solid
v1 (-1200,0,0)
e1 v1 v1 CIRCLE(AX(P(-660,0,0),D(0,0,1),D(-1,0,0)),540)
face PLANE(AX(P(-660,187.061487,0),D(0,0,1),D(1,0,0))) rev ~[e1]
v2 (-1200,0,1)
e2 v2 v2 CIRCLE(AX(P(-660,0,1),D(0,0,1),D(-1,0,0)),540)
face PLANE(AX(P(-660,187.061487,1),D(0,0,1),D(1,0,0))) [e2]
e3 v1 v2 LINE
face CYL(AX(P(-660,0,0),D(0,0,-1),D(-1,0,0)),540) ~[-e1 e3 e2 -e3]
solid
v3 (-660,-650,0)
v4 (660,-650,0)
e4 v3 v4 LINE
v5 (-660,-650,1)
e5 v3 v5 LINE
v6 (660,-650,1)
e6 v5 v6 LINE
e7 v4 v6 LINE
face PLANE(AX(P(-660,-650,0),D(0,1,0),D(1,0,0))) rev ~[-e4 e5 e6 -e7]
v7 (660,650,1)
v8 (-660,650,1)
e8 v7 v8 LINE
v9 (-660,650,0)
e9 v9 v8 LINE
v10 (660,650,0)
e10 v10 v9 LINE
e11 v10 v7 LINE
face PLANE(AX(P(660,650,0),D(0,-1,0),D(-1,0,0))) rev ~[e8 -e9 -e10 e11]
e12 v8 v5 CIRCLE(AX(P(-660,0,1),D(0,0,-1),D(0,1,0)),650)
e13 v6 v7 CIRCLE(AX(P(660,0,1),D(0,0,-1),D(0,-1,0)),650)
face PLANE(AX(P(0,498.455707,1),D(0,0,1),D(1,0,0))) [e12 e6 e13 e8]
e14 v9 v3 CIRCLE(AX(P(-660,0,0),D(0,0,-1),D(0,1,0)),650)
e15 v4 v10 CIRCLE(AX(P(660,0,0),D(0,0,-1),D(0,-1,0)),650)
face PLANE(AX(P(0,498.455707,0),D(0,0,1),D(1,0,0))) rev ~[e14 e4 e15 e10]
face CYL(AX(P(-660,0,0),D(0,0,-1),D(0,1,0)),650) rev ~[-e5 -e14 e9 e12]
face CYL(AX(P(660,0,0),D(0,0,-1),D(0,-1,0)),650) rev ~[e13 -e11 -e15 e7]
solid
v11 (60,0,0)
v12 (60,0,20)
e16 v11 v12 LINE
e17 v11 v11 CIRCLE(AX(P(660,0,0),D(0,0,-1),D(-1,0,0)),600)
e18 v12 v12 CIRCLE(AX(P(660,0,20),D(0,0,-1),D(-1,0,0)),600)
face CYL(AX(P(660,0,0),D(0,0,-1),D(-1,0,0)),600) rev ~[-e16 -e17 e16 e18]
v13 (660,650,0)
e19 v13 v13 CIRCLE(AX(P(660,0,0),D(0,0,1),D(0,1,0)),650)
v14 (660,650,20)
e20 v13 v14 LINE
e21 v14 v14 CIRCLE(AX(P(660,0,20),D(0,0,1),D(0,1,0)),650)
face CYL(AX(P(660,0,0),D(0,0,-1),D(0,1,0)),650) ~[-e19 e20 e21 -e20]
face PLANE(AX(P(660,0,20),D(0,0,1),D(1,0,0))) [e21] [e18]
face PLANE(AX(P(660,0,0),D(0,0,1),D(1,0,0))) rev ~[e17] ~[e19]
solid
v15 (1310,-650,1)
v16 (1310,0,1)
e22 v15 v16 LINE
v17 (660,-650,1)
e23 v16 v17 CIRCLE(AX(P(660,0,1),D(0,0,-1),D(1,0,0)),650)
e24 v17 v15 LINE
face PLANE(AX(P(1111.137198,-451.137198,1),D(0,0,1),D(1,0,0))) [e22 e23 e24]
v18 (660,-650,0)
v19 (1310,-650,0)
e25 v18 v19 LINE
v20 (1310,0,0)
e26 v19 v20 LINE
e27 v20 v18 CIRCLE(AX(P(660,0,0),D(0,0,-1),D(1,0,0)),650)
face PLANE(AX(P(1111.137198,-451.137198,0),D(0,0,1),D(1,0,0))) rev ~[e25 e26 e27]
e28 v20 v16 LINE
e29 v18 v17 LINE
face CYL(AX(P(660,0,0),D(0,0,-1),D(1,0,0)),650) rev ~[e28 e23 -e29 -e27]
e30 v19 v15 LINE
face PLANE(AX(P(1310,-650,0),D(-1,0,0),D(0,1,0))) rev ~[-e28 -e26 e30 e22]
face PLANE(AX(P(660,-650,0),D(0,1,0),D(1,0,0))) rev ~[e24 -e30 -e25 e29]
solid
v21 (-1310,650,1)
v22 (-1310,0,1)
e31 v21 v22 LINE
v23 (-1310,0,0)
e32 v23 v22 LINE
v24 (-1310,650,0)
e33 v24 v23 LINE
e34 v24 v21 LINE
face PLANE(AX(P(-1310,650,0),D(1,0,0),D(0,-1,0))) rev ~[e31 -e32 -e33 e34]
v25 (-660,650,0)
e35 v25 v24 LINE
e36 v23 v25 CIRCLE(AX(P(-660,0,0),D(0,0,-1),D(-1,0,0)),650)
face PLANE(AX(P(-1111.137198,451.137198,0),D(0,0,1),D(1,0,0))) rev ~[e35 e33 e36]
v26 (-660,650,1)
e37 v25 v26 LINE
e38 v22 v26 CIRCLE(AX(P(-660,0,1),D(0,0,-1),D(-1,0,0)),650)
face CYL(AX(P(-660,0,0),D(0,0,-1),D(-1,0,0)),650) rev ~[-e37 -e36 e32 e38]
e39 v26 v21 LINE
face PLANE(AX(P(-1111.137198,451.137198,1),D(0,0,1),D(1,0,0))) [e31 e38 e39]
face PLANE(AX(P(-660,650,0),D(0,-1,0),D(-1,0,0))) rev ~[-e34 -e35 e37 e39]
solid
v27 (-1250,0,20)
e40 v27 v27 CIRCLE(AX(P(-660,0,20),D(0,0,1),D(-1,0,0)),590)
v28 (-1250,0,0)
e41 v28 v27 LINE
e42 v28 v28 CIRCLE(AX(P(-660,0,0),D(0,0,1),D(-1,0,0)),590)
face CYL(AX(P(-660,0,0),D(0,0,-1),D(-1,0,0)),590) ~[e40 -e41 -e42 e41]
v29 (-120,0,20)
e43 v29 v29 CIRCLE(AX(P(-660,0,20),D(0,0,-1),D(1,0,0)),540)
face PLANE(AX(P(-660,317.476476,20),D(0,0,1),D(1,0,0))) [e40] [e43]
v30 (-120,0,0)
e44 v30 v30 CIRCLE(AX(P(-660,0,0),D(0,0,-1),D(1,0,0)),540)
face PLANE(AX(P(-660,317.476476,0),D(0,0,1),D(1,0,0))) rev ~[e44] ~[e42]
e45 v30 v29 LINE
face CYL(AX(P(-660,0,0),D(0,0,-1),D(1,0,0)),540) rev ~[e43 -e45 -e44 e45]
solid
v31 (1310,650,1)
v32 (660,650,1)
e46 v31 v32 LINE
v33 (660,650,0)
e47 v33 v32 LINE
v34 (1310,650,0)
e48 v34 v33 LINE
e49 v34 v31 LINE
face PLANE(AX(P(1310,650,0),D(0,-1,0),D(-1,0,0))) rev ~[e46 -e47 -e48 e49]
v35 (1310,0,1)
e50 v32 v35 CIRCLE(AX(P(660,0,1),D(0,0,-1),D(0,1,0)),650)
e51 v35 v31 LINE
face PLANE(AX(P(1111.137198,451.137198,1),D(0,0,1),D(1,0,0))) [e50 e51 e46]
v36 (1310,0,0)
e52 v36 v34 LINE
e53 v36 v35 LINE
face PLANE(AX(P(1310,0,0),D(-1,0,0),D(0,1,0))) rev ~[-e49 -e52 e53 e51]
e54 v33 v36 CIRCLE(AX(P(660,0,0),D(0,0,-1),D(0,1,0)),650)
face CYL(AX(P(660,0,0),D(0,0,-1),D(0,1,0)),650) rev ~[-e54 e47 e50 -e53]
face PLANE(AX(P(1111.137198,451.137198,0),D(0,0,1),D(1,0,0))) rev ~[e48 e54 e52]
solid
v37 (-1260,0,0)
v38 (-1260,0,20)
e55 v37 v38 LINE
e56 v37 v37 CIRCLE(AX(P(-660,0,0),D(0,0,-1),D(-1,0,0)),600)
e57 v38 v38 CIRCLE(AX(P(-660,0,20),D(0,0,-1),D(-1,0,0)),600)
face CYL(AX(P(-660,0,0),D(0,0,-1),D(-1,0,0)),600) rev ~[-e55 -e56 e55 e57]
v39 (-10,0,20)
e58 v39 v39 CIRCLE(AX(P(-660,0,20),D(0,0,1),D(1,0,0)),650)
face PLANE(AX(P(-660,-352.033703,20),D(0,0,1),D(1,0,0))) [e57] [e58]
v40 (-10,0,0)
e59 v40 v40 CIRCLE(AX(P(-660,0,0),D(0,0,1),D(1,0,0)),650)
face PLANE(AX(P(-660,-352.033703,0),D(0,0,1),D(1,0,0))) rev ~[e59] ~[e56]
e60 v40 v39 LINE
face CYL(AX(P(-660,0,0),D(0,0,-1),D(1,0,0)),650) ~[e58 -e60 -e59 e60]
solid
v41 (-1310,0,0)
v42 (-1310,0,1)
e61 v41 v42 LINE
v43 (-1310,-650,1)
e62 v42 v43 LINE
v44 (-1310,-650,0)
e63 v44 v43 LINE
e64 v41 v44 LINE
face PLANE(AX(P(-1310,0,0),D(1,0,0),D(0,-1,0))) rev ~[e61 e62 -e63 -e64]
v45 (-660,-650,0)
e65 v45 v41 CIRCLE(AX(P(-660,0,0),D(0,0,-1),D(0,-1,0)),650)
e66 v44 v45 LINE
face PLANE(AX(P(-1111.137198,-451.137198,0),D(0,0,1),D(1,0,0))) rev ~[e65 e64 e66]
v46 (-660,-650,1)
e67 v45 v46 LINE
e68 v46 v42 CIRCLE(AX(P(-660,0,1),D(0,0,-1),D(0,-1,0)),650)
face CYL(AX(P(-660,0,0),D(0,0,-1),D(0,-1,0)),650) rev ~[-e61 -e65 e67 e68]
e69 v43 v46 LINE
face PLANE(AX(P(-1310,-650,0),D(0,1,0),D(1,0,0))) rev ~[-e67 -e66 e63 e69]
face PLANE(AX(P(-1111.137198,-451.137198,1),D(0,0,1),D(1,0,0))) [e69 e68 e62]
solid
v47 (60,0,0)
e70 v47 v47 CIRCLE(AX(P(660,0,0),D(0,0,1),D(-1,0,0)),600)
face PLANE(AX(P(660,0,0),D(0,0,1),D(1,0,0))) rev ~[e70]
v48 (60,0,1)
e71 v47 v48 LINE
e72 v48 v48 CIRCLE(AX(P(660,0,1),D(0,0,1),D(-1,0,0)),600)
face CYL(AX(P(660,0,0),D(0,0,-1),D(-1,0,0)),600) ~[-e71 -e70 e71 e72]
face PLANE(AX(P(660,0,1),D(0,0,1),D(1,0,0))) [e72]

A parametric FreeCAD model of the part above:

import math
import FreeCAD as App
import Part
import Sketcher
from FreeCAD import Vector
Q = App.Units.Quantity

doc = App.newDocument("Part")
body = doc.addObject("PartDesign::Body", "Body")

# Sketch on XY plane
sketch1 = doc.addObject("Sketcher::SketchObject", "Sketch")
body.addObject(sketch1)
sketch1.AttachmentSupport = (doc.XY_Plane, [""])
sketch1.MapMode = "FlatFace"
sketch1.addGeometry([
    Part.Circle(Vector(-660, 0, 0), Vector(0, 0, 1), 650),
    Part.Circle(Vector(-660, 0, 0), Vector(0, 0, 1), 600),
], False)
sketch1.addConstraint([
    Sketcher.Constraint("Coincident", 1, 3, 0, 3),
    Sketcher.Constraint("PointOnObject", 0, 3, -1),
    Sketcher.Constraint("Diameter", 0, Q("1300 mm")),
    Sketcher.Constraint("Diameter", 1, Q("1200 mm")),
    Sketcher.Constraint("DistanceX", 0, 3, -1, 1, Q("660 mm")),
])
pad1 = doc.addObject("PartDesign::Pad", "Pad")
body.addObject(pad1)
pad1.Profile = sketch1
pad1.Length = 20
body2 = doc.addObject("PartDesign::Body", "Body001")

# Sketch on XY plane
sketch2 = doc.addObject("Sketcher::SketchObject", "Sketch001")
body2.addObject(sketch2)
sketch2.AttachmentSupport = (doc.getObject("XY_Plane001"), [""])
sketch2.MapMode = "FlatFace"
sketch2.addGeometry([
    Part.Circle(Vector(660, 0, 0), Vector(0, 0, 1), 650),
    Part.Circle(Vector(660, 0, 0), Vector(0, 0, 1), 600),
], False)
sketch2.addConstraint([
    Sketcher.Constraint("Coincident", 1, 3, 0, 3),
    Sketcher.Constraint("PointOnObject", 0, 3, -1),
    Sketcher.Constraint("Diameter", 0, Q("1300 mm")),
    Sketcher.Constraint("Diameter", 1, Q("1200 mm")),
    Sketcher.Constraint("DistanceX", -1, 1, 0, 3, Q("660 mm")),
])
pad2 = doc.addObject("PartDesign::Pad", "Pad001")
body2.addObject(pad2)
pad2.Profile = sketch2
pad2.Length = 20
body3 = doc.addObject("PartDesign::Body", "Body002")

# Sketch on XY plane
sketch3 = doc.addObject("Sketcher::SketchObject", "Sketch002")
body3.addObject(sketch3)
sketch3.AttachmentSupport = (doc.getObject("XY_Plane002"), [""])
sketch3.MapMode = "FlatFace"
sketch3.addGeometry([
    Part.Circle(Vector(-660, 0, 0), Vector(0, 0, 1), 590),
    Part.Circle(Vector(-660, 0, 0), Vector(0, 0, 1), 540),
], False)
sketch3.addConstraint([
    Sketcher.Constraint("Coincident", 1, 3, 0, 3),
    Sketcher.Constraint("PointOnObject", 0, 3, -1),
    Sketcher.Constraint("Diameter", 0, Q("1180 mm")),
    Sketcher.Constraint("Diameter", 1, Q("1080 mm")),
    Sketcher.Constraint("DistanceX", 0, 3, -1, 1, Q("660 mm")),
])
pad3 = doc.addObject("PartDesign::Pad", "Pad002")
body3.addObject(pad3)
pad3.Profile = sketch3
pad3.Length = 20
body4 = doc.addObject("PartDesign::Body", "Body003")

# Sketch on XY plane
sketch4 = doc.addObject("Sketcher::SketchObject", "Sketch003")
body4.addObject(sketch4)
sketch4.AttachmentSupport = (doc.getObject("XY_Plane003"), [""])
sketch4.MapMode = "FlatFace"
sketch4.addGeometry([
    Part.LineSegment(Vector(-1310, 650, 0), Vector(-1310, 0, 0)),
    Part.ArcOfCircle(Part.Circle(Vector(-660, 0, 0), Vector(0, 0, 1), 650), math.radians(90), math.radians(180)),
    Part.LineSegment(Vector(-660, 650, 0), Vector(-1310, 650, 0)),
], False)
sketch4.addConstraint([
    Sketcher.Constraint("Tangent", 0, 2, 1, 2),
    Sketcher.Constraint("Tangent", 1, 1, 2, 1),
    Sketcher.Constraint("Coincident", 2, 2, 0, 1),
    Sketcher.Constraint("Vertical", 0),
    Sketcher.Constraint("Horizontal", 2),
    Sketcher.Constraint("PointOnObject", 1, 3, -1),
    Sketcher.Constraint("Radius", 1, Q("650 mm")),
    Sketcher.Constraint("DistanceX", 1, 3, -1, 1, Q("660 mm")),
])
pad4 = doc.addObject("PartDesign::Pad", "Pad003")
body4.addObject(pad4)
pad4.Profile = sketch4
pad4.Length = 1
body5 = doc.addObject("PartDesign::Body", "Body004")

# Sketch on XY plane
sketch5 = doc.addObject("Sketcher::SketchObject", "Sketch004")
body5.addObject(sketch5)
sketch5.AttachmentSupport = (doc.getObject("XY_Plane004"), [""])
sketch5.MapMode = "FlatFace"
sketch5.addGeometry([
    Part.LineSegment(Vector(660, 650, 0), Vector(-660, 650, 0)),
    Part.ArcOfCircle(Part.Circle(Vector(-660, 0, 0), Vector(0, 0, 1), 650), math.radians(-90), math.radians(90)),
    Part.LineSegment(Vector(-660, -650, 0), Vector(660, -650, 0)),
    Part.ArcOfCircle(Part.Circle(Vector(660, 0, 0), Vector(0, 0, 1), 650), math.radians(90), math.radians(270)),
], False)
sketch5.addConstraint([
    Sketcher.Constraint("Tangent", 0, 2, 1, 2),
    Sketcher.Constraint("Tangent", 1, 1, 2, 1),
    Sketcher.Constraint("Tangent", 2, 2, 3, 2),
    Sketcher.Constraint("Tangent", 3, 1, 0, 1),
    Sketcher.Constraint("Horizontal", 0),
    Sketcher.Constraint("Horizontal", 2),
    Sketcher.Constraint("Symmetric", 1, 3, 3, 3, -1, 1),
    Sketcher.Constraint("Radius", 1, Q("650 mm")),
    Sketcher.Constraint("DistanceX", 0, 2, 0, 1, Q("1320 mm")),
])
pad5 = doc.addObject("PartDesign::Pad", "Pad004")
body5.addObject(pad5)
pad5.Profile = sketch5
pad5.Length = 1
body6 = doc.addObject("PartDesign::Body", "Body005")

# Sketch on XY plane
sketch6 = doc.addObject("Sketcher::SketchObject", "Sketch005")
body6.addObject(sketch6)
sketch6.AttachmentSupport = (doc.getObject("XY_Plane005"), [""])
sketch6.MapMode = "FlatFace"
sketch6.addGeometry([
    Part.LineSegment(Vector(-1310, -650, 0), Vector(-660, -650, 0)),
    Part.ArcOfCircle(Part.Circle(Vector(-660, 0, 0), Vector(0, 0, 1), 650), math.radians(180), math.radians(270)),
    Part.LineSegment(Vector(-1310, 0, 0), Vector(-1310, -650, 0)),
], False)
sketch6.addConstraint([
    Sketcher.Constraint("Tangent", 0, 2, 1, 2),
    Sketcher.Constraint("Tangent", 1, 1, 2, 1),
    Sketcher.Constraint("Coincident", 2, 2, 0, 1),
    Sketcher.Constraint("Horizontal", 0),
    Sketcher.Constraint("Vertical", 2),
    Sketcher.Constraint("PointOnObject", 1, 3, -1),
    Sketcher.Constraint("Radius", 1, Q("650 mm")),
    Sketcher.Constraint("DistanceX", 1, 3, -1, 1, Q("660 mm")),
])
pad6 = doc.addObject("PartDesign::Pad", "Pad005")
body6.addObject(pad6)
pad6.Profile = sketch6
pad6.Length = 1
body7 = doc.addObject("PartDesign::Body", "Body006")

# Sketch on XY plane
sketch7 = doc.addObject("Sketcher::SketchObject", "Sketch006")
body7.addObject(sketch7)
sketch7.AttachmentSupport = (doc.getObject("XY_Plane006"), [""])
sketch7.MapMode = "FlatFace"
sketch7.addGeometry([
    Part.LineSegment(Vector(660, -650, 0), Vector(1310, -650, 0)),
    Part.LineSegment(Vector(1310, -650, 0), Vector(1310, 0, 0)),
    Part.ArcOfCircle(Part.Circle(Vector(660, 0, 0), Vector(0, 0, 1), 650), math.radians(-90), math.radians(0)),
], False)
sketch7.addConstraint([
    Sketcher.Constraint("Coincident", 0, 2, 1, 1),
    Sketcher.Constraint("Tangent", 1, 2, 2, 2),
    Sketcher.Constraint("Tangent", 2, 1, 0, 1),
    Sketcher.Constraint("Horizontal", 0),
    Sketcher.Constraint("Vertical", 1),
    Sketcher.Constraint("PointOnObject", 2, 3, -1),
    Sketcher.Constraint("Radius", 2, Q("650 mm")),
    Sketcher.Constraint("DistanceX", -1, 1, 2, 3, Q("660 mm")),
])
pad7 = doc.addObject("PartDesign::Pad", "Pad006")
body7.addObject(pad7)
pad7.Profile = sketch7
pad7.Length = 1
body8 = doc.addObject("PartDesign::Body", "Body007")

# Sketch on XY plane
sketch8 = doc.addObject("Sketcher::SketchObject", "Sketch007")
body8.addObject(sketch8)
sketch8.AttachmentSupport = (doc.getObject("XY_Plane007"), [""])
sketch8.MapMode = "FlatFace"
sketch8.addGeometry([
    Part.ArcOfCircle(Part.Circle(Vector(660, 0, 0), Vector(0, 0, 1), 650), math.radians(0), math.radians(90)),
    Part.LineSegment(Vector(1310, 0, 0), Vector(1310, 650, 0)),
    Part.LineSegment(Vector(1310, 650, 0), Vector(660, 650, 0)),
], False)
sketch8.addConstraint([
    Sketcher.Constraint("Tangent", 0, 1, 1, 1),
    Sketcher.Constraint("Coincident", 1, 2, 2, 1),
    Sketcher.Constraint("Tangent", 2, 2, 0, 2),
    Sketcher.Constraint("Vertical", 1),
    Sketcher.Constraint("Horizontal", 2),
    Sketcher.Constraint("PointOnObject", 0, 3, -1),
    Sketcher.Constraint("Radius", 0, Q("650 mm")),
    Sketcher.Constraint("DistanceX", -1, 1, 0, 3, Q("660 mm")),
])
pad8 = doc.addObject("PartDesign::Pad", "Pad007")
body8.addObject(pad8)
pad8.Profile = sketch8
pad8.Length = 1
body9 = doc.addObject("PartDesign::Body", "Body008")

# Sketch on XY plane
sketch9 = doc.addObject("Sketcher::SketchObject", "Sketch008")
body9.addObject(sketch9)
sketch9.AttachmentSupport = (doc.getObject("XY_Plane008"), [""])
sketch9.MapMode = "FlatFace"
sketch9.addGeometry(Part.Circle(Vector(-660, 0, 0), Vector(0, 0, 1), 540), False)
sketch9.addConstraint([
    Sketcher.Constraint("PointOnObject", 0, 3, -1),
    Sketcher.Constraint("Diameter", 0, Q("1080 mm")),
    Sketcher.Constraint("DistanceX", 0, 3, -1, 1, Q("660 mm")),
])
pad9 = doc.addObject("PartDesign::Pad", "Pad008")
body9.addObject(pad9)
pad9.Profile = sketch9
pad9.Length = 1
body10 = doc.addObject("PartDesign::Body", "Body009")

# Sketch on XY plane
sketch10 = doc.addObject("Sketcher::SketchObject", "Sketch009")
body10.addObject(sketch10)
sketch10.AttachmentSupport = (doc.getObject("XY_Plane009"), [""])
sketch10.MapMode = "FlatFace"
sketch10.addGeometry(Part.Circle(Vector(660, 0, 0), Vector(0, 0, 1), 600), False)
sketch10.addConstraint([
    Sketcher.Constraint("PointOnObject", 0, 3, -1),
    Sketcher.Constraint("Diameter", 0, Q("1200 mm")),
    Sketcher.Constraint("DistanceX", -1, 1, 0, 3, Q("660 mm")),
])
pad10 = doc.addObject("PartDesign::Pad", "Pad009")
body10.addObject(pad10)
pad10.Profile = sketch10
pad10.Length = 1

doc.recompute()
